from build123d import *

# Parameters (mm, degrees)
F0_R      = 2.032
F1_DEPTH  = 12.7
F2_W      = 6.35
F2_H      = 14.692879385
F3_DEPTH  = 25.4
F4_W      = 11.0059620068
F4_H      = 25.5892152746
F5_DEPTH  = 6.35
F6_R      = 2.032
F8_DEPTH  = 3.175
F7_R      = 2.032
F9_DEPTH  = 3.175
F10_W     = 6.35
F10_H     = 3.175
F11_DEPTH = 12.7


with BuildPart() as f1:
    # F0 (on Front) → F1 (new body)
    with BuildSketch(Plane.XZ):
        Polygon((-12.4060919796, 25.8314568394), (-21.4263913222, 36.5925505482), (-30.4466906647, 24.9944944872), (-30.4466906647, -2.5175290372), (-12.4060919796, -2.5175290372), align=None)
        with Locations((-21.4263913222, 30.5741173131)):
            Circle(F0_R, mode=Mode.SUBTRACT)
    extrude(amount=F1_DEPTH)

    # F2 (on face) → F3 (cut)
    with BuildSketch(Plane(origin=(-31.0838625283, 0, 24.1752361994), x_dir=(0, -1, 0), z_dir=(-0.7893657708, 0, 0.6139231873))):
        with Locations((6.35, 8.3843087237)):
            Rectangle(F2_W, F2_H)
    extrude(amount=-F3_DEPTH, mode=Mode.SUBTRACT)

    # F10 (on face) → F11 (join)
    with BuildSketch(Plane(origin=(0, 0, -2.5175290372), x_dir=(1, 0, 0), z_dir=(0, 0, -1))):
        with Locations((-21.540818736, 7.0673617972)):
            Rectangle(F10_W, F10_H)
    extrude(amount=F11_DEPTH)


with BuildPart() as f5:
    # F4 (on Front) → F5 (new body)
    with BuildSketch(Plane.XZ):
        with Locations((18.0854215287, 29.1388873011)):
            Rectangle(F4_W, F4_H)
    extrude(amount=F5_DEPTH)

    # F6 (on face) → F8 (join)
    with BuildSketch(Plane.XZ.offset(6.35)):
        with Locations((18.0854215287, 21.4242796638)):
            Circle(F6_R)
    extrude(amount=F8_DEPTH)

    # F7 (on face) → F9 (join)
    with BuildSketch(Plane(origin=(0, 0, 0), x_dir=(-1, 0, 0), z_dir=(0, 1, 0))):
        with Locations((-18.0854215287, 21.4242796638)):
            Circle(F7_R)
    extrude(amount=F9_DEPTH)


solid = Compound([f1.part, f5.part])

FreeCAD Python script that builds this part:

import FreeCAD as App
import Part
import Sketcher
Q = App.Units.Quantity

doc = App.newDocument("Part")
body = doc.addObject("PartDesign::Body", "Body")

sketch1 = body.newObject("Sketcher::SketchObject", "Sketch")
sketch1.AttachmentSupport = (doc.getObject("XZ_Plane"), [""])
sketch1.MapMode = "FlatFace"
sketch1.addGeometry([
    Part.LineSegment(App.Vector(-12.4, 25.8, 0), App.Vector(-21.4, 36.6, 0)),
    Part.LineSegment(App.Vector(-21.4, 36.6, 0), App.Vector(-30.4, 25, 0)),
    Part.LineSegment(App.Vector(-30.4, 25, 0), App.Vector(-30.4, -2.5, 0)),
    Part.LineSegment(App.Vector(-30.4, -2.5, 0), App.Vector(-12.4, -2.5, 0)),
    Part.LineSegment(App.Vector(-12.4, -2.5, 0), App.Vector(-12.4, 25.8, 0)),
    Part.Circle(App.Vector(-21.4, 30.6, 0), App.Vector(0, 0, 1), 2),
], False)
sketch1.addConstraint([
    Sketcher.Constraint("Coincident", 0, 2, 1, 1),
    Sketcher.Constraint("Coincident", 1, 2, 2, 1),
    Sketcher.Constraint("Coincident", 2, 2, 3, 1),
    Sketcher.Constraint("Coincident", 3, 2, 4, 1),
    Sketcher.Constraint("Coincident", 4, 2, 0, 1),
    Sketcher.Constraint("Vertical", 2),
    Sketcher.Constraint("Horizontal", 3),
    Sketcher.Constraint("Vertical", 4),
    Sketcher.Constraint("Vertical", 5, 3, 0, 2),
    Sketcher.Constraint("Diameter", 5, Q("0.16 in")),
    Sketcher.Constraint("DistanceX", 3, 1, 3, 2, 18.040599),
    Sketcher.Constraint("DistanceX", 1, 2, 5, 3, 9.020299),
    Sketcher.Constraint("Distance", 1, 14.692879),
    Sketcher.Constraint("DistanceY", 2, 2, 2, 1, 27.512024),
    Sketcher.Constraint("DistanceY", 4, 1, 4, 2, 28.348986),
    Sketcher.Constraint("DistanceX", 5, 3, -1, 1, 21.426391),
    Sketcher.Constraint("DistanceY", -1, 1, 0, 2, 36.592551),
    Sketcher.Constraint("DistanceY", 4, 2, 5, 3, 4.74266),
])
pad1 = body.newObject("PartDesign::Pad", "Pad")
pad1.Profile = sketch1
pad1.Length = Q("0.5 in")

sketch2 = body.newObject("Sketcher::SketchObject", "Sketch001")
sketch2.Placement = App.Placement(App.Vector(-31.083863, 0, 24.175236), App.Rotation(App.Vector(0, -1, 0), App.Vector(0.613923187, 0, 0.789365771), App.Vector(-0.789365771, 0, 0.613923187), "ZXY"))
sketch2.addGeometry([
    Part.LineSegment(App.Vector(3, 16, 0), App.Vector(3, 1, 0)),
    Part.LineSegment(App.Vector(3, 1, 0), App.Vector(10, 1, 0)),
    Part.LineSegment(App.Vector(10, 1, 0), App.Vector(10, 16, 0)),
    Part.LineSegment(App.Vector(10, 16, 0), App.Vector(3, 16, 0)),
], False)
sketch2.addConstraint([
    Sketcher.Constraint("Coincident", 0, 2, 1, 1),
    Sketcher.Constraint("Coincident", 1, 2, 2, 1),
    Sketcher.Constraint("Coincident", 2, 2, 3, 1),
    Sketcher.Constraint("Coincident", 3, 2, 0, 1),
    Sketcher.Constraint("Vertical", 0),
    Sketcher.Constraint("Horizontal", 1),
    Sketcher.Constraint("Vertical", 2),
    Sketcher.Constraint("Horizontal", 3),
    Sketcher.Constraint("DistanceX", 1, 1, 1, 2, Q("0.25 in")),
    Sketcher.Constraint("DistanceX", -1, 1, 0, 2, Q("0.125 in")),
    Sketcher.Constraint("DistanceY", 0, 2, 0, 1, 14.692879),
    Sketcher.Constraint("DistanceY", -1, 1, 0, 2, 1.037869),
])
pocket1 = body.newObject("PartDesign::Pocket", "Pocket")
pocket1.Profile = sketch2
pocket1.Length = Q("1 in")

sketch3 = body.newObject("Sketcher::SketchObject", "Sketch002")
sketch3.AttachmentSupport = (doc.getObject("XY_Plane"), [""])
sketch3.MapMode = "FlatFace"
sketch3.AttachmentOffset = App.Placement(App.Vector(0, 0, -2.517529), App.Rotation())
sketch3.addGeometry([
    Part.LineSegment(App.Vector(-24.7, -8.7, 0), App.Vector(-24.7, -5.5, 0)),
    Part.LineSegment(App.Vector(-24.7, -5.5, 0), App.Vector(-18.4, -5.5, 0)),
    Part.LineSegment(App.Vector(-18.4, -5.5, 0), App.Vector(-18.4, -8.7, 0)),
    Part.LineSegment(App.Vector(-18.4, -8.7, 0), App.Vector(-24.7, -8.7, 0)),
], False)
sketch3.addConstraint([
    Sketcher.Constraint("Coincident", 0, 2, 1, 1),
    Sketcher.Constraint("Coincident", 1, 2, 2, 1),
    Sketcher.Constraint("Coincident", 2, 2, 3, 1),
    Sketcher.Constraint("Coincident", 3, 2, 0, 1),
    Sketcher.Constraint("Vertical", 0),
    Sketcher.Constraint("Horizontal", 1),
    Sketcher.Constraint("Vertical", 2),
    Sketcher.Constraint("Horizontal", 3),
    Sketcher.Constraint("DistanceX", 1, 1, 1, 2, Q("0.25 in")),
    Sketcher.Constraint("DistanceY", 0, 1, 0, 2, Q("0.125 in")),
    Sketcher.Constraint("DistanceX", 0, 2, -1, 1, 24.715819),
    Sketcher.Constraint("DistanceY", 0, 2, -1, 1, 5.479862),
])
pad2 = body.newObject("PartDesign::Pad", "Pad001")
pad2.Profile = sketch3
pad2.Length = Q("0.5 in")
pad2.Reversed = True
body2 = doc.addObject("PartDesign::Body", "Body001")

sketch4 = body2.newObject("Sketcher::SketchObject", "Sketch003")
sketch4.AttachmentSupport = (doc.getObject("XZ_Plane001"), [""])
sketch4.MapMode = "FlatFace"
sketch4.addGeometry([
    Part.LineSegment(App.Vector(13, 42, 0), App.Vector(13, 16, 0)),
    Part.LineSegment(App.Vector(13, 16, 0), App.Vector(24, 16, 0)),
    Part.LineSegment(App.Vector(24, 16, 0), App.Vector(24, 42, 0)),
    Part.LineSegment(App.Vector(24, 42, 0), App.Vector(13, 42, 0)),
], False)
sketch4.addConstraint([
    Sketcher.Constraint("Coincident", 0, 2, 1, 1),
    Sketcher.Constraint("Coincident", 1, 2, 2, 1),
    Sketcher.Constraint("Coincident", 2, 2, 3, 1),
    Sketcher.Constraint("Coincident", 3, 2, 0, 1),
    Sketcher.Constraint("Vertical", 0),
    Sketcher.Constraint("Horizontal", 1),
    Sketcher.Constraint("Vertical", 2),
    Sketcher.Constraint("Horizontal", 3),
    Sketcher.Constraint("DistanceX", 1, 1, 1, 2, 11.005962),
    Sketcher.Constraint("DistanceY", 0, 2, 0, 1, 25.589215),
    Sketcher.Constraint("DistanceX", -1, 1, 0, 2, 12.582441),
    Sketcher.Constraint("DistanceY", -1, 1, 0, 2, 16.34428),
])
pad3 = body2.newObject("PartDesign::Pad", "Pad002")
pad3.Profile = sketch4
pad3.Length = Q("0.25 in")

sketch5 = body2.newObject("Sketcher::SketchObject", "Sketch004")
sketch5.AttachmentSupport = (doc.getObject("XZ_Plane001"), [""])
sketch5.MapMode = "FlatFace"
sketch5.AttachmentOffset = App.Placement(App.Vector(0, 0, 0.25 * 25.4), App.Rotation())
sketch5.addGeometry(Part.Circle(App.Vector(18.1, 21.4, 0), App.Vector(0, 0, 1), 2), False)
sketch5.addConstraint([
    Sketcher.Constraint("Diameter", 0, Q("0.16 in")),
    Sketcher.Constraint("DistanceX", -1, 1, 0, 3, 18.085422),
    Sketcher.Constraint("DistanceY", -1, 1, 0, 3, 21.42428),
])
pad4 = body2.newObject("PartDesign::Pad", "Pad003")
pad4.Profile = sketch5
pad4.Length = Q("0.125 in")

sketch6 = body2.newObject("Sketcher::SketchObject", "Sketch005")
sketch6.AttachmentSupport = (doc.getObject("XZ_Plane001"), [""])
sketch6.MapMode = "FlatFace"
sketch6.addGeometry(Part.Circle(App.Vector(18.1, 21.4, 0), App.Vector(0, 0, 1), 2), False)
sketch6.addConstraint([
    Sketcher.Constraint("Diameter", 0, Q("0.16 in")),
    Sketcher.Constraint("DistanceX", -1, 1, 0, 3, 18.085422),
    Sketcher.Constraint("DistanceY", -1, 1, 0, 3, 21.42428),
])
pad5 = body2.newObject("PartDesign::Pad", "Pad004")
pad5.Profile = sketch6
pad5.Length = Q("0.125 in")
pad5.Reversed = True

doc.recompute()
